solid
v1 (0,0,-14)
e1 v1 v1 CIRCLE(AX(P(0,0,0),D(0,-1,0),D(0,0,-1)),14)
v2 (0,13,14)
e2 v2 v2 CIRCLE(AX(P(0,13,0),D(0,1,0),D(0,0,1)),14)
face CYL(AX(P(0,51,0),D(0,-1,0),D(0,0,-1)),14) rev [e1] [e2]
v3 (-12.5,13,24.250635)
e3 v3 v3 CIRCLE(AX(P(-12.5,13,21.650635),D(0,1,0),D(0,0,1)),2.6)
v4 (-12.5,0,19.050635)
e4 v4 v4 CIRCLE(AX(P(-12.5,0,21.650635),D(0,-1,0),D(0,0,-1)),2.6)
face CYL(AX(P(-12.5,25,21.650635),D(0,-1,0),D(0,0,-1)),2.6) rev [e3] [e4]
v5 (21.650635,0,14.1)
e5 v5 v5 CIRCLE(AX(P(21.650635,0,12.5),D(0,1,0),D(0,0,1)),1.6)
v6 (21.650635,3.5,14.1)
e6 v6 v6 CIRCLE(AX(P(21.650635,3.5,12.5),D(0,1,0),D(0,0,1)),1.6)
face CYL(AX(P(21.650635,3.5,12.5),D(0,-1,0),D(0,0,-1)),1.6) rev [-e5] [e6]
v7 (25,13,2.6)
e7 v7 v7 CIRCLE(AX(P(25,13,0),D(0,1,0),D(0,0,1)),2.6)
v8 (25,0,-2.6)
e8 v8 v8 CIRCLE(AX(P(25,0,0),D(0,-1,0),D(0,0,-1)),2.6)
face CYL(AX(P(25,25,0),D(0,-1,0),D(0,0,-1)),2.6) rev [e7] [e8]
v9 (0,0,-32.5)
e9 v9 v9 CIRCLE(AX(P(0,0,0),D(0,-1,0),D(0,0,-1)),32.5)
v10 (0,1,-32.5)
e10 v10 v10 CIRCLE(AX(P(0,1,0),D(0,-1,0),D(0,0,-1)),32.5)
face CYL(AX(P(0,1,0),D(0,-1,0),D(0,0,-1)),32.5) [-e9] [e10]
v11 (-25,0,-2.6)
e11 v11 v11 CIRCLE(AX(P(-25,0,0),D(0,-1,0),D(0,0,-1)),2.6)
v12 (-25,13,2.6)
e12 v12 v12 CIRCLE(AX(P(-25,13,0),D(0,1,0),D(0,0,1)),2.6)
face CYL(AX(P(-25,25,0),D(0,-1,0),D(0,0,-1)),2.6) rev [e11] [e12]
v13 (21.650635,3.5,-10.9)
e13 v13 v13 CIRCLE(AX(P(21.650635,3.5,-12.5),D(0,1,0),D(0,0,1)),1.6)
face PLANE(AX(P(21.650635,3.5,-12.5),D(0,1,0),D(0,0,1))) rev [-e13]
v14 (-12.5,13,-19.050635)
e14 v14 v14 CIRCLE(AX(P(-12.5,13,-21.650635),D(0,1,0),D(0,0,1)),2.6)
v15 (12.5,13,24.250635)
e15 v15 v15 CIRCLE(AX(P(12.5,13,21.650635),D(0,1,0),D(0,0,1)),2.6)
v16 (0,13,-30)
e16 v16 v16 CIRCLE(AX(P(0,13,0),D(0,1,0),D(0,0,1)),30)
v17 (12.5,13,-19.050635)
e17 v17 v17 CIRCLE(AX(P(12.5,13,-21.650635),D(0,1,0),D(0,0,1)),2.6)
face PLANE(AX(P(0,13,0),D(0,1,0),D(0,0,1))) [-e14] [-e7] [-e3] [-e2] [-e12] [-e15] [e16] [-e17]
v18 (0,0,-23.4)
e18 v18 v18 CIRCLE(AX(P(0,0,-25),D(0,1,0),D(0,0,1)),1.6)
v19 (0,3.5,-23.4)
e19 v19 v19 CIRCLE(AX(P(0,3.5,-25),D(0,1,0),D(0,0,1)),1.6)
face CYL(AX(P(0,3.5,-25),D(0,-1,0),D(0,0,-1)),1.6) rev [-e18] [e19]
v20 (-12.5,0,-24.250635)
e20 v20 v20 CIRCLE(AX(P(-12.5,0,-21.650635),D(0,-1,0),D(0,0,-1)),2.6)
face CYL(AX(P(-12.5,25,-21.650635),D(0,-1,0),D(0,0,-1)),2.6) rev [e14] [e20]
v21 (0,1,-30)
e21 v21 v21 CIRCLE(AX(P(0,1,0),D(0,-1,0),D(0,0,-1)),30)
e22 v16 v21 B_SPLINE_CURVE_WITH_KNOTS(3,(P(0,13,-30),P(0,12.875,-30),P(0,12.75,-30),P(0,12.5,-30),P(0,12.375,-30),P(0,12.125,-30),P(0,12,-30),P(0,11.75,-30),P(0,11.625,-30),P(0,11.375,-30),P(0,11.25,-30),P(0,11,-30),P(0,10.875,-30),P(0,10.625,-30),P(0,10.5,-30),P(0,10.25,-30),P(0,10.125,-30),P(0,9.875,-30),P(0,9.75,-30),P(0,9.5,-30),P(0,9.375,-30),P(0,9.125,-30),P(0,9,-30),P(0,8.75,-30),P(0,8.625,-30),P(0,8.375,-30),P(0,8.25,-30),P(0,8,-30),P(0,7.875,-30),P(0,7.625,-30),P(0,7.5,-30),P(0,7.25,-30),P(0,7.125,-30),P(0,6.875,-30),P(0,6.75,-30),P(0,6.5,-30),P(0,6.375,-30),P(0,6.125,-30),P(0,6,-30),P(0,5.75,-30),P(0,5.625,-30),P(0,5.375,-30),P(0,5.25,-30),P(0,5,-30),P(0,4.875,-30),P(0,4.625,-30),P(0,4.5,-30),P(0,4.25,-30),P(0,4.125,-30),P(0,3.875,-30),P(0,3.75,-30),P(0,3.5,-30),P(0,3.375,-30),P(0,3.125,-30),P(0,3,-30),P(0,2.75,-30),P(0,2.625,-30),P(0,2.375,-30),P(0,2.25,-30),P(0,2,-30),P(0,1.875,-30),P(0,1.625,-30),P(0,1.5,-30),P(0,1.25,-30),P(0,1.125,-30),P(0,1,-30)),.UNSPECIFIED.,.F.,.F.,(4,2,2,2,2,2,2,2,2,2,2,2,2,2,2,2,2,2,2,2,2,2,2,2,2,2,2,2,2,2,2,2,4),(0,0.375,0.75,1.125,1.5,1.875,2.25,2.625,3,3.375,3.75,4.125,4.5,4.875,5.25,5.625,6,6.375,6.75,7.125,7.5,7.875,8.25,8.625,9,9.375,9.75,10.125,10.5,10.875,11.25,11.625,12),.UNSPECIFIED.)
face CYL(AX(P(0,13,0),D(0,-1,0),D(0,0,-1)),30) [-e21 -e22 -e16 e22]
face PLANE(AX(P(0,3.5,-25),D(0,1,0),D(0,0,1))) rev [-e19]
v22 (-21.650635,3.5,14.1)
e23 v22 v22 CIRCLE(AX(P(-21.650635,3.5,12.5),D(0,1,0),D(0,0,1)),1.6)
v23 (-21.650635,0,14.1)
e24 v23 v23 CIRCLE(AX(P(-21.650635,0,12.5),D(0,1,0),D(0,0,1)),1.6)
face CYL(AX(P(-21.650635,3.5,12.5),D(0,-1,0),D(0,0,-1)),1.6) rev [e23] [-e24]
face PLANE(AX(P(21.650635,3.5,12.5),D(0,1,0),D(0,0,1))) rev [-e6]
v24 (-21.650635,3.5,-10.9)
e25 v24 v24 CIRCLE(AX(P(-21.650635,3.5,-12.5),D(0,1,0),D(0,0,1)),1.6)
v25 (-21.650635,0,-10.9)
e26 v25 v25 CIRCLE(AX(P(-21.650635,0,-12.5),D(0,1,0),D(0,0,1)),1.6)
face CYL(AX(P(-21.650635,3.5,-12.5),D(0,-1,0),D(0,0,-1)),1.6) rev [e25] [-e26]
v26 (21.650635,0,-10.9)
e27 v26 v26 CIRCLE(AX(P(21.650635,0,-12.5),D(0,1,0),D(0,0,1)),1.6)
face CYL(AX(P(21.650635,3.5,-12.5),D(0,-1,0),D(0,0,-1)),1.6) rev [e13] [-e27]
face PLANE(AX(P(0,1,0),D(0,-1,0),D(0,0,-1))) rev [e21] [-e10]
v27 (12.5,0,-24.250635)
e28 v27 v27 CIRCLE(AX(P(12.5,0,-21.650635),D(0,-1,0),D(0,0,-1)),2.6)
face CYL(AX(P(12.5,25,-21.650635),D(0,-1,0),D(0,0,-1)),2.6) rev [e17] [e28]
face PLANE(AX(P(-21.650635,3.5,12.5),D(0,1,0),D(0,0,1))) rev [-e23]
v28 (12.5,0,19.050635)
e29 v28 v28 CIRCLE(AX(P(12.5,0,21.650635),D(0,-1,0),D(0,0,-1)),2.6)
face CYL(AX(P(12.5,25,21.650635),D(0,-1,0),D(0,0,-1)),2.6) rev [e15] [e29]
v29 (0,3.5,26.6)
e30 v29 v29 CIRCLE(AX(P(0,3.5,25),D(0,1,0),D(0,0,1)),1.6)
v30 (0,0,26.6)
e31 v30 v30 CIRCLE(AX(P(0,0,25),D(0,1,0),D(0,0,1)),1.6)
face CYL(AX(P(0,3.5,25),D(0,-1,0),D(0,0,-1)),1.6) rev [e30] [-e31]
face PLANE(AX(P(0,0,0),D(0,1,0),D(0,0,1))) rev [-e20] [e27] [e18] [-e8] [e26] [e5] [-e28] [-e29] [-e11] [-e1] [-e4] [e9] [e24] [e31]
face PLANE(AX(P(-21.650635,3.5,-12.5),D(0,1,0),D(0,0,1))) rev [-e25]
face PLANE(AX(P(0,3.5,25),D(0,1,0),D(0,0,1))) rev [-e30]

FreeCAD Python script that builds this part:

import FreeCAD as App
import Part
import Sketcher
Q = App.Units.Quantity

doc = App.newDocument("Part")
body = doc.addObject("PartDesign::Body", "Body")

# Sketch on XZ plane
sketch1 = body.newObject("Sketcher::SketchObject", "Sketch")
sketch1.AttachmentSupport = (doc.getObject("XZ_Plane"), [""])
sketch1.MapMode = "FlatFace"
sketch1.addGeometry(Part.Circle(App.Vector(0, 0, 0), App.Vector(0, 0, 1), 30), False)
sketch1.addConstraint(Sketcher.Constraint("Coincident", 0, 3, -1, 1))
sketch1.addConstraint(Sketcher.Constraint("Diameter", 0, Q("60 mm")))
pad1 = body.newObject("PartDesign::Pad", "Pad")
pad1.Profile = sketch1
pad1.Length = 13
pad1.Reversed = True

# Sketch on XZ plane
sketch2 = body.newObject("Sketcher::SketchObject", "Sketch001")
sketch2.AttachmentSupport = (doc.getObject("XZ_Plane"), [""])
sketch2.MapMode = "FlatFace"
sketch2.addGeometry(Part.Circle(App.Vector(0, 0, 0), App.Vector(0, 0, 1), 32), False)
sketch2.addConstraint(Sketcher.Constraint("Coincident", 0, 3, -1, 1))
sketch2.addConstraint(Sketcher.Constraint("Diameter", 0, Q("65 mm")))
pad2 = body.newObject("PartDesign::Pad", "Pad001")
pad2.Profile = sketch2
pad2.Length = 1
pad2.Reversed = True

# Sketch on XZ plane
sketch3 = body.newObject("Sketcher::SketchObject", "Sketch002")
sketch3.AttachmentSupport = (doc.getObject("XZ_Plane"), [""])
sketch3.MapMode = "FlatFace"
sketch3.addGeometry(Part.Circle(App.Vector(0, -25, 0), App.Vector(0, 0, 1), 1.6), False)
sketch3.addGeometry(Part.Circle(App.Vector(21.7, -12.5, 0), App.Vector(0, 0, 1), 1.6), False)
sketch3.addGeometry(Part.Circle(App.Vector(21.7, 12.5, 0), App.Vector(0, 0, 1), 1.6), False)
sketch3.addGeometry(Part.Circle(App.Vector(0, 25, 0), App.Vector(0, 0, 1), 1.6), False)
sketch3.addGeometry(Part.Circle(App.Vector(-21.7, 12.5, 0), App.Vector(0, 0, 1), 1.6), False)
sketch3.addGeometry(Part.Circle(App.Vector(-21.7, -12.5, 0), App.Vector(0, 0, 1), 1.6), False)
sketch3.addConstraint(Sketcher.Constraint("Equal", 0, 1))
sketch3.addConstraint(Sketcher.Constraint("Equal", 1, 2))
sketch3.addConstraint(Sketcher.Constraint("Equal", 2, 3))
sketch3.addConstraint(Sketcher.Constraint("Equal", 3, 4))
sketch3.addConstraint(Sketcher.Constraint("Equal", 4, 5))
sketch3.addConstraint(Sketcher.Constraint("Symmetric", 0, 3, 3, 3, -1, 1))
sketch3.addConstraint(Sketcher.Constraint("Symmetric", 1, 3, 4, 3, -1, 1))
sketch3.addConstraint(Sketcher.Constraint("Symmetric", 2, 3, 5, 3, -1, 1))
sketch3.addConstraint(Sketcher.Constraint("Symmetric", 2, 3, 4, 3, -2))
sketch3.addConstraint(Sketcher.Constraint("PointOnObject", 0, 3, -2))
sketch3.addConstraint(Sketcher.Constraint("Diameter", 0, Q("3.2 mm")))
sketch3.addConstraint(Sketcher.Constraint("DistanceY", 0, 3, -1, 1, Q("25 mm")))
sketch3.addConstraint(Sketcher.Constraint("DistanceY", 1, 3, 2, 3, Q("25 mm")))
sketch3.addConstraint(Sketcher.Constraint("DistanceX", 4, 3, 2, 3, Q("43.30127 mm")))
pocket1 = body.newObject("PartDesign::Pocket", "Pocket")
pocket1.Profile = sketch3
pocket1.Length = 3.5

# Sketch on XZ plane
sketch4 = body.newObject("Sketcher::SketchObject", "Sketch003")
sketch4.AttachmentSupport = (doc.getObject("XZ_Plane"), [""])
sketch4.MapMode = "FlatFace"
sketch4.addGeometry(Part.Circle(App.Vector(0, 0, 0), App.Vector(0, 0, 1), 14), False)
sketch4.addConstraint(Sketcher.Constraint("Coincident", 0, 3, -1, 1))
sketch4.addConstraint(Sketcher.Constraint("Diameter", 0, Q("28 mm")))
pocket2 = body.newObject("PartDesign::Pocket", "Pocket001")
pocket2.Profile = sketch4
pocket2.Length = 51

# Sketch on XZ plane
sketch5 = body.newObject("Sketcher::SketchObject", "Sketch004")
sketch5.AttachmentSupport = (doc.getObject("XZ_Plane"), [""])
sketch5.MapMode = "FlatFace"
sketch5.addGeometry(Part.Circle(App.Vector(-12.5, 21.7, 0), App.Vector(0, 0, 1), 2.6), False)
sketch5.addGeometry(Part.Circle(App.Vector(12.5, 21.7, 0), App.Vector(0, 0, 1), 2.6), False)
sketch5.addGeometry(Part.Circle(App.Vector(25, 0, 0), App.Vector(0, 0, 1), 2.6), False)
sketch5.addGeometry(Part.Circle(App.Vector(12.5, -21.7, 0), App.Vector(0, 0, 1), 2.6), False)
sketch5.addGeometry(Part.Circle(App.Vector(-12.5, -21.7, 0), App.Vector(0, 0, 1), 2.6), False)
sketch5.addGeometry(Part.Circle(App.Vector(-25, 0, 0), App.Vector(0, 0, 1), 2.6), False)
sketch5.addConstraint(Sketcher.Constraint("Equal", 0, 1))
sketch5.addConstraint(Sketcher.Constraint("Equal", 1, 2))
sketch5.addConstraint(Sketcher.Constraint("Equal", 2, 3))
sketch5.addConstraint(Sketcher.Constraint("Equal", 3, 4))
sketch5.addConstraint(Sketcher.Constraint("Equal", 4, 5))
sketch5.addConstraint(Sketcher.Constraint("Symmetric", 0, 3, 3, 3, -1, 1))
sketch5.addConstraint(Sketcher.Constraint("Symmetric", 1, 3, 4, 3, -1, 1))
sketch5.addConstraint(Sketcher.Constraint("Symmetric", 2, 3, 5, 3, -1, 1))
sketch5.addConstraint(Sketcher.Constraint("Symmetric", 0, 3, 1, 3, -2))
sketch5.addConstraint(Sketcher.Constraint("PointOnObject", 2, 3, -1))
sketch5.addConstraint(Sketcher.Constraint("Diameter", 0, Q("5.2 mm")))
sketch5.addConstraint(Sketcher.Constraint("DistanceX", -1, 1, 2, 3, Q("25 mm")))
sketch5.addConstraint(Sketcher.Constraint("DistanceX", 0, 3, 1, 3, Q("25 mm")))
sketch5.addConstraint(Sketcher.Constraint("DistanceY", 3, 3, 1, 3, Q("43.30127 mm")))
pocket3 = body.newObject("PartDesign::Pocket", "Pocket002")
pocket3.Profile = sketch5
pocket3.Length = 25

doc.recompute()
